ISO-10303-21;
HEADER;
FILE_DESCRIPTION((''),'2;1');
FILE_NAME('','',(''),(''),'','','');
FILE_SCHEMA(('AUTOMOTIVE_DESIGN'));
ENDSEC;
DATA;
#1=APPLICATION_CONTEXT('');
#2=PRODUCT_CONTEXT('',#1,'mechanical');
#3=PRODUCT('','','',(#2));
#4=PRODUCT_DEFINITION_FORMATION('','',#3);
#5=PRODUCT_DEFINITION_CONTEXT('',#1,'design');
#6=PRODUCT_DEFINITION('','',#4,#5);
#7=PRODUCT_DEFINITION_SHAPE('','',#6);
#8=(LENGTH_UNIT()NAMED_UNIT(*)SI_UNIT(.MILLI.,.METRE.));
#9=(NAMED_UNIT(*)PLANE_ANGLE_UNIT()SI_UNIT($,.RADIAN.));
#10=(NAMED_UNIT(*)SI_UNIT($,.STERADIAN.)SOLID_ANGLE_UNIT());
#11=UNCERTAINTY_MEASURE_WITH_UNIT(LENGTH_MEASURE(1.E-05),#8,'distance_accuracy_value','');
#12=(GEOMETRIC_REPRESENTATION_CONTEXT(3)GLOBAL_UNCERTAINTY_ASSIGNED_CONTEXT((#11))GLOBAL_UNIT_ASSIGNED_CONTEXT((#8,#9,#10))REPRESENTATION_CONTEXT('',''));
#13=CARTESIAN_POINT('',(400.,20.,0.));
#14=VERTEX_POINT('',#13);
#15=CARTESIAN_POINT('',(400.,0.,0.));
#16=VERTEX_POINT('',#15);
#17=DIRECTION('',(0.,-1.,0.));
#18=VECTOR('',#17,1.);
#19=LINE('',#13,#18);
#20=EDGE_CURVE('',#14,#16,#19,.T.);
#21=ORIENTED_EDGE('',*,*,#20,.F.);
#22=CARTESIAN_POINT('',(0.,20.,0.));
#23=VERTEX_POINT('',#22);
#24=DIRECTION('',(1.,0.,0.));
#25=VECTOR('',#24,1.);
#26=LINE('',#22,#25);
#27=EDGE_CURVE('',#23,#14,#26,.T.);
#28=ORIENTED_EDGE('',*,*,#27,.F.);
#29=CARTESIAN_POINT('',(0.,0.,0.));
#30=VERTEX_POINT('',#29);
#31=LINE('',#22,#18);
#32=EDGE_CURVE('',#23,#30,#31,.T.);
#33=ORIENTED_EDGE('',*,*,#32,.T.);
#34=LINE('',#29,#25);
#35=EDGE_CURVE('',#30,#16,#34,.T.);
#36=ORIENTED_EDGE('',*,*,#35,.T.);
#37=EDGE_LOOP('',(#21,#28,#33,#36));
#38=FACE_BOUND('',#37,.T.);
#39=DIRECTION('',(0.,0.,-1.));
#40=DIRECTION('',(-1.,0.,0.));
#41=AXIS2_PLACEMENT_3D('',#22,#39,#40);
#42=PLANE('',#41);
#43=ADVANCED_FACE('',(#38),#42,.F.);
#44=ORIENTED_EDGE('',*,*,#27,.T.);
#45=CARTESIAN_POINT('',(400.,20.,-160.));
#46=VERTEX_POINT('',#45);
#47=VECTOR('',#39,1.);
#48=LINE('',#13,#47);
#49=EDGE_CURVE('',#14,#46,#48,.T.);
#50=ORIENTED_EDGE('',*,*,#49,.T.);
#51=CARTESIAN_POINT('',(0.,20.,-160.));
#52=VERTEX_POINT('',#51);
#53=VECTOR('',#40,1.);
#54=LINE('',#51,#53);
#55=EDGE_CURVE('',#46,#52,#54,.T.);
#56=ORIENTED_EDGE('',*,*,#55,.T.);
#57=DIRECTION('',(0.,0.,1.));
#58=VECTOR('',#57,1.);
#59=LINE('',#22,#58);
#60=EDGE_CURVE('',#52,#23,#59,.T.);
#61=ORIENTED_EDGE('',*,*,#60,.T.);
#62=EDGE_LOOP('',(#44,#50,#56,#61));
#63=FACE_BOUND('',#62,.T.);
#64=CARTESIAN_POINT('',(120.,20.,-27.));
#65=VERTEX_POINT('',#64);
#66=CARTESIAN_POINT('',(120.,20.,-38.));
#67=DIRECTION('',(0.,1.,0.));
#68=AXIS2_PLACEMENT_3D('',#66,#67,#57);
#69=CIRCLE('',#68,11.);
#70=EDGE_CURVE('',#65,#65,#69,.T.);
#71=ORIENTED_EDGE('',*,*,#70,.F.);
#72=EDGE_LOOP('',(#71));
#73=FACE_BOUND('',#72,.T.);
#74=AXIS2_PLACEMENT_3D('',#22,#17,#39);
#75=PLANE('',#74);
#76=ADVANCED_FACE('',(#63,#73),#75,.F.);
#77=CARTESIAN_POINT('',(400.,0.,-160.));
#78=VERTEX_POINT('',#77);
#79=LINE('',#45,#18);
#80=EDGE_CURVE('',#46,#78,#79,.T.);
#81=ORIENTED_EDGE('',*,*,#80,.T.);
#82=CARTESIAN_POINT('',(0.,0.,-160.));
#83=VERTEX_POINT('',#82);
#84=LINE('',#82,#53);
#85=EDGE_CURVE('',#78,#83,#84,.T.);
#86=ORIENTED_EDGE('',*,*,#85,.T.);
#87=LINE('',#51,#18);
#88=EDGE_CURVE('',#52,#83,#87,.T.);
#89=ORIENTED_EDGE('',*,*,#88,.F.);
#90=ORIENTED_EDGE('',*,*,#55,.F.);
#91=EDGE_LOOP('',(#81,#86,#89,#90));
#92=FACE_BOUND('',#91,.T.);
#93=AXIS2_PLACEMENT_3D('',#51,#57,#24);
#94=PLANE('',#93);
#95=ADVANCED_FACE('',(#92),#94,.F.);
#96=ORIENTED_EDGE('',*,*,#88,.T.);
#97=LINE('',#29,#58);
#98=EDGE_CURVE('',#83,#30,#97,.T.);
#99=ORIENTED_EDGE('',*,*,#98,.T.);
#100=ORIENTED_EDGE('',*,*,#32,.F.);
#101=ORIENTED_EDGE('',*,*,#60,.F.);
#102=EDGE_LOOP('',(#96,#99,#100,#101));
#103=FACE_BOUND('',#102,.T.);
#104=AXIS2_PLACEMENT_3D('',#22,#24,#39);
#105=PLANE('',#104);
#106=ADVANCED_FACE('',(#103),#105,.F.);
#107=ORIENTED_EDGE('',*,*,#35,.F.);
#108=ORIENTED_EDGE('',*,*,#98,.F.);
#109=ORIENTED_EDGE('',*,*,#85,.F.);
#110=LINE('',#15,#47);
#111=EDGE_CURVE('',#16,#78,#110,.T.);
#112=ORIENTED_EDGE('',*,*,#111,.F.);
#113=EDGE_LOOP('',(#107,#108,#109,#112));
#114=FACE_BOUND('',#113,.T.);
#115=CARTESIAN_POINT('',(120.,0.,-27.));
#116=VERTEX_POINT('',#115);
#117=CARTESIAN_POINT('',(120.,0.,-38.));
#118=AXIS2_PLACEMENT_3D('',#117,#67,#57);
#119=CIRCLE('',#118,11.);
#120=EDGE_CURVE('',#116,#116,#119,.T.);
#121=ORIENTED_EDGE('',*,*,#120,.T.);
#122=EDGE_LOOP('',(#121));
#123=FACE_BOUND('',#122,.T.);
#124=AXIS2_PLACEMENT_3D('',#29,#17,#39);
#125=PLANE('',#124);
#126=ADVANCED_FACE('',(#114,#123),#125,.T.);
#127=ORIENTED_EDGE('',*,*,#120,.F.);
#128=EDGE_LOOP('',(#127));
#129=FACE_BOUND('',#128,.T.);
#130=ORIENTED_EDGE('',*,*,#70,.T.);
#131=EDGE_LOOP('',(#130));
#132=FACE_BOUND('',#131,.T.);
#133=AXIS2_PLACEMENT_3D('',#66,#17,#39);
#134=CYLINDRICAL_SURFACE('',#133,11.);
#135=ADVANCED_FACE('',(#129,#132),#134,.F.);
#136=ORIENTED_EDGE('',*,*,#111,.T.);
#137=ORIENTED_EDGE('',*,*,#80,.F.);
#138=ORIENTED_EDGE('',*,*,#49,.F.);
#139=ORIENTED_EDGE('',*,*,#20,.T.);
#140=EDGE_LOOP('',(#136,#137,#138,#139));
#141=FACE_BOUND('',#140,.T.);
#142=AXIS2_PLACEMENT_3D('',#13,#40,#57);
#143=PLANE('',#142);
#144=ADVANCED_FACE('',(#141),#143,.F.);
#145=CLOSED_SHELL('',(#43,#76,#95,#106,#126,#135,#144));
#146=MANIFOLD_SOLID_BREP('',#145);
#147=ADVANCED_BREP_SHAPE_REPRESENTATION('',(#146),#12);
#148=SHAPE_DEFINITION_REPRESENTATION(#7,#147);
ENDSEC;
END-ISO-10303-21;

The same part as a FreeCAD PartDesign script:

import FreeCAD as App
import Part
import Sketcher
from FreeCAD import Vector


def add_polygon(sketch, points):
    """Adds a closed chain of lines whose ends are joined by coincident constraints."""
    first, n = sketch.GeometryCount, len(points)
    for a, b in zip(points, points[1:] + points[:1]):
        sketch.addGeometry(Part.LineSegment(App.Vector(*a, 0), App.Vector(*b, 0)), False)
    for i in range(n):
        sketch.addConstraint(Sketcher.Constraint("Coincident", first + i, 2, first + (i + 1) % n, 1))

doc = App.newDocument("Part")
body = doc.addObject("PartDesign::Body", "Body")

sketch1 = doc.addObject("Sketcher::SketchObject", "Sketch")
body.addObject(sketch1)
sketch1.AttachmentSupport = (doc.XZ_Plane, [""])
sketch1.MapMode = "FlatFace"
add_polygon(sketch1, [(0, -160), (0, 0), (400, 0), (400, -160)])
sketch1.addGeometry(Part.Circle(Vector(120, -38, 0), Vector(0, 0, 1), 11), False)
sketch1.addConstraint([
    Sketcher.Constraint("Vertical", 0),
    Sketcher.Constraint("Horizontal", 1),
    Sketcher.Constraint("Vertical", 2),
    Sketcher.Constraint("Horizontal", 3),
    Sketcher.Constraint("Coincident", 0, 2, -1, 1),
    Sketcher.Constraint("Diameter", 4, 22.0),
    Sketcher.Constraint("DistanceX", 1, 1, 1, 2, 400.0),
    Sketcher.Constraint("DistanceY", 0, 1, 0, 2, 160.0),
    Sketcher.Constraint("DistanceX", -1, 1, 4, 3, 120.0),
    Sketcher.Constraint("DistanceY", 4, 3, -1, 1, 38.0),
])
pad1 = doc.addObject("PartDesign::Pad", "Pad")
body.addObject(pad1)
pad1.Profile = sketch1
pad1.Length = 20
pad1.Reversed = True

doc.recompute()
